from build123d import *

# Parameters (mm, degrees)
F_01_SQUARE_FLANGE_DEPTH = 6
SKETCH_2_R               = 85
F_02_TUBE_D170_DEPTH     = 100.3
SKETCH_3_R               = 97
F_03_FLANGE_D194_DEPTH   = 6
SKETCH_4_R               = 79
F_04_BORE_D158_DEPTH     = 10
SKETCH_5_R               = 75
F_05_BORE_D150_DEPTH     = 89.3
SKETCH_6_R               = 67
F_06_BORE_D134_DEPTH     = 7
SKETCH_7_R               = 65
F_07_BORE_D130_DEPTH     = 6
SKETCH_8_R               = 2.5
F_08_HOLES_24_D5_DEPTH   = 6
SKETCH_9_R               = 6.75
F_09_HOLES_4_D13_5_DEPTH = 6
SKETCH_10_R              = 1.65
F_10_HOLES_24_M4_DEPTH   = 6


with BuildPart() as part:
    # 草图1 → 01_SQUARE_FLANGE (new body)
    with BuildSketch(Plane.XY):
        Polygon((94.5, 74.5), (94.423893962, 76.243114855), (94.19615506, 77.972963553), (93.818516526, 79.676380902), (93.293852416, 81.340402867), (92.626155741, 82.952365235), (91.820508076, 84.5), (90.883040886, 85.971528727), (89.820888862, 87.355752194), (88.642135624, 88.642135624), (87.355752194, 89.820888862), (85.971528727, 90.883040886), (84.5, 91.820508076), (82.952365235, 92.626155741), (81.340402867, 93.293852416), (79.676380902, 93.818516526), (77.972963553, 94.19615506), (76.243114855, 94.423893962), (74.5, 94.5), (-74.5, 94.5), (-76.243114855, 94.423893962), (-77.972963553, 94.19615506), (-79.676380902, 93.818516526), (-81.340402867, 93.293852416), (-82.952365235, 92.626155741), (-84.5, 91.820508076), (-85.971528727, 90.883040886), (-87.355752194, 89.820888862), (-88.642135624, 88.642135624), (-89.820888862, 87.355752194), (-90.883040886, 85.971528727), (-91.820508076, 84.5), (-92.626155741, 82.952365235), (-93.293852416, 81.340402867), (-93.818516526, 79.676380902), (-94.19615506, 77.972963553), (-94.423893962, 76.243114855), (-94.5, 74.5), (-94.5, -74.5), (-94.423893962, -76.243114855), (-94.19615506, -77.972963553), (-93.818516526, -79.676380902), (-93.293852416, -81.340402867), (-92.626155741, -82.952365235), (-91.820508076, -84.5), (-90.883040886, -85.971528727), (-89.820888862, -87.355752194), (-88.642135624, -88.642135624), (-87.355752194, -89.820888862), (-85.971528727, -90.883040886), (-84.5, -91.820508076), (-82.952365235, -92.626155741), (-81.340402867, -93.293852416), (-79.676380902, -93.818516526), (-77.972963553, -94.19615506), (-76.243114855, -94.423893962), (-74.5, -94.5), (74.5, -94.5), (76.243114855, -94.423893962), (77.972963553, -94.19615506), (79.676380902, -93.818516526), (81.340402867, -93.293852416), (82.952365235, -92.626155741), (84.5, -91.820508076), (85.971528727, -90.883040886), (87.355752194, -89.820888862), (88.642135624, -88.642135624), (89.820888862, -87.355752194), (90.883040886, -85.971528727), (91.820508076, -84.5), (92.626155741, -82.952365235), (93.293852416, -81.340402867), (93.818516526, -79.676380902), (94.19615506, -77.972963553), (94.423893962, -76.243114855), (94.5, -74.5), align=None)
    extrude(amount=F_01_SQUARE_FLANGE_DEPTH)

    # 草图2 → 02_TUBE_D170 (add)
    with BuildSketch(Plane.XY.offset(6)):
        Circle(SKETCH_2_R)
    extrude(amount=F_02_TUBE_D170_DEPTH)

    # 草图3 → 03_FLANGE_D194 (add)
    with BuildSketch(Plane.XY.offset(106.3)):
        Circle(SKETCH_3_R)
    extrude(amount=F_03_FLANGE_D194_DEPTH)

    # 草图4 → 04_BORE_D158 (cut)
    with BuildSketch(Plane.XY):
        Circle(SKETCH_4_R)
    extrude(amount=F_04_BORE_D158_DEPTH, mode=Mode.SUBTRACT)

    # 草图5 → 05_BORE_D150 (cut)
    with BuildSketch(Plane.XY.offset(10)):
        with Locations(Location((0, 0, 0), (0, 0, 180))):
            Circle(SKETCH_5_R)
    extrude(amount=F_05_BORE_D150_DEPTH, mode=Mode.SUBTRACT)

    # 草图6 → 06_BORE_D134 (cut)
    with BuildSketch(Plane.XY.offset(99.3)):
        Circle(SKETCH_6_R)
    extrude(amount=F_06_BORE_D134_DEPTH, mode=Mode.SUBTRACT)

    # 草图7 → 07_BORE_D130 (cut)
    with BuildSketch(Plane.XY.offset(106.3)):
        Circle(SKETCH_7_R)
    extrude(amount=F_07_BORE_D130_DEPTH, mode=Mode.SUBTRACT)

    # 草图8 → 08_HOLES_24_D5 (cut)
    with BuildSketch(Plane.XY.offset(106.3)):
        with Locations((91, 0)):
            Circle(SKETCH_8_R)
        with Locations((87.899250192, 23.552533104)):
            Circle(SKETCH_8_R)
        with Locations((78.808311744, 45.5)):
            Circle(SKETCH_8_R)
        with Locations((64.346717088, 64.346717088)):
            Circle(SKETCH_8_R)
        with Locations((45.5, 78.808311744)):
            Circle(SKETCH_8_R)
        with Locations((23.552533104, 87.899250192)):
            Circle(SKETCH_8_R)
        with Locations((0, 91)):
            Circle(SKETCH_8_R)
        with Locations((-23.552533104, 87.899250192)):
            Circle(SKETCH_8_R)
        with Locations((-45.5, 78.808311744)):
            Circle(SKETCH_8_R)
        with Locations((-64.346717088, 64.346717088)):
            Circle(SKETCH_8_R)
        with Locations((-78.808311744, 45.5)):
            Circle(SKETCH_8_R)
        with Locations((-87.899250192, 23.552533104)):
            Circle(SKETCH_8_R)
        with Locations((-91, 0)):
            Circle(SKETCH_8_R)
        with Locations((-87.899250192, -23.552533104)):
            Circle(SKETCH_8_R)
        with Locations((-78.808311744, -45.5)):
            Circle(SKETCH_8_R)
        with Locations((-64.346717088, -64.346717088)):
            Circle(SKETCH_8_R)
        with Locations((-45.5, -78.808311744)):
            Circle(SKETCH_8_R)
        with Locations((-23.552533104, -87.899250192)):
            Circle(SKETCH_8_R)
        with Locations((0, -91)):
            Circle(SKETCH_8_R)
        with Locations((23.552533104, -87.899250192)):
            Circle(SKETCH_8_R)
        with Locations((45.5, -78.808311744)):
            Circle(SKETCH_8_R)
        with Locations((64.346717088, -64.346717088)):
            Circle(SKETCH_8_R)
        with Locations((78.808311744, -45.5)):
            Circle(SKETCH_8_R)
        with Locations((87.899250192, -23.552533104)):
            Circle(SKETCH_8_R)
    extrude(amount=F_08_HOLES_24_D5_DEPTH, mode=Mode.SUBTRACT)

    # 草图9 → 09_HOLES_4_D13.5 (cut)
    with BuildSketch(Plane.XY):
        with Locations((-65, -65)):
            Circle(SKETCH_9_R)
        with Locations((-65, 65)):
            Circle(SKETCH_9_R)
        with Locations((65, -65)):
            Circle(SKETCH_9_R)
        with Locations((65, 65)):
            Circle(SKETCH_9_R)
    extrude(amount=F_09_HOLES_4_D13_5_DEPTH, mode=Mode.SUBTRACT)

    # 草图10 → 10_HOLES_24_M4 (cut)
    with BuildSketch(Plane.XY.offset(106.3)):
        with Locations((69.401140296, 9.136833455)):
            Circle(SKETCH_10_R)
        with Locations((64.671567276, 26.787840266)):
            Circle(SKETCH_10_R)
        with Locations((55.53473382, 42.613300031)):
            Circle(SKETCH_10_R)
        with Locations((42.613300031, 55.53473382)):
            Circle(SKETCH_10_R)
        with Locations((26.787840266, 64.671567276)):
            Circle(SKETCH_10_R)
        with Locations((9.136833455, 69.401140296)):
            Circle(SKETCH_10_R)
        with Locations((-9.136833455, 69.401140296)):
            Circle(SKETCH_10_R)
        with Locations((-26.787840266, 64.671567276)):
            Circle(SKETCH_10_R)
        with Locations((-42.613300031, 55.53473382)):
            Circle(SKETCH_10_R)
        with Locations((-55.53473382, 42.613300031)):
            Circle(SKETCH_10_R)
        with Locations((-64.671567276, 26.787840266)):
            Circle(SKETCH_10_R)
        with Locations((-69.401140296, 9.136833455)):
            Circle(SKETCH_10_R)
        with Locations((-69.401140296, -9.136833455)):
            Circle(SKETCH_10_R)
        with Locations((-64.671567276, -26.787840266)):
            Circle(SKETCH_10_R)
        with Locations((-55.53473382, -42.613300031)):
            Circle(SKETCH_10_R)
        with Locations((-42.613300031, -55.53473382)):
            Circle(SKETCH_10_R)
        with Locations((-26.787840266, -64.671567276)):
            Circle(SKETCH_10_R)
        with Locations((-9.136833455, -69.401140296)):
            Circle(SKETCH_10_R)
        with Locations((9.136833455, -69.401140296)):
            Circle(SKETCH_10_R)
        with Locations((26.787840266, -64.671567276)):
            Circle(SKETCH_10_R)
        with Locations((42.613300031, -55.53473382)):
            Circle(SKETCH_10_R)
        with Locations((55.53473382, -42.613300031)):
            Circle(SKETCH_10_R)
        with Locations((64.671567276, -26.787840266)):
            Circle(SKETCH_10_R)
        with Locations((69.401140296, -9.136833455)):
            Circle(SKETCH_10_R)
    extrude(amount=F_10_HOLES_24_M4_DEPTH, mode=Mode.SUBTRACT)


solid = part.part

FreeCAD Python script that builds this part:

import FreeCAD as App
import Part
import Sketcher
from FreeCAD import Vector
Q = App.Units.Quantity


def add_polygon(sketch, points):
    """Adds a closed chain of lines whose ends are joined by coincident constraints."""
    first, n = sketch.GeometryCount, len(points)
    for a, b in zip(points, points[1:] + points[:1]):
        sketch.addGeometry(Part.LineSegment(App.Vector(*a, 0), App.Vector(*b, 0)), False)
    for i in range(n):
        sketch.addConstraint(Sketcher.Constraint("Coincident", first + i, 2, first + (i + 1) % n, 1))

doc = App.newDocument("Part")
body = doc.addObject("PartDesign::Body", "Body")

sketch1 = body.newObject("Sketcher::SketchObject", "Sketch")
sketch1.AttachmentSupport = (doc.getObject("XY_Plane"), [""])
sketch1.MapMode = "FlatFace"
add_polygon(sketch1, [(94.5, 74.5), (94.423894, 76.243115), (94.196155, 77.972964), (93.818517, 79.676381), (93.293852, 81.340403), (92.626156, 82.952365), (91.820508, 84.5), (90.883041, 85.971529), (89.820889, 87.355752), (88.642136, 88.642136), (87.355752, 89.820889), (85.971529, 90.883041), (84.5, 91.820508), (82.952365, 92.626156), (81.340403, 93.293852), (79.676381, 93.818517), (77.972964, 94.196155), (76.243115, 94.423894), (74.5, 94.5), (-74.5, 94.5), (-76.243115, 94.423894), (-77.972964, 94.196155), (-79.676381, 93.818517), (-81.340403, 93.293852), (-82.952365, 92.626156), (-84.5, 91.820508), (-85.971529, 90.883041), (-87.355752, 89.820889), (-88.642136, 88.642136), (-89.820889, 87.355752), (-90.883041, 85.971529), (-91.820508, 84.5), (-92.626156, 82.952365), (-93.293852, 81.340403), (-93.818517, 79.676381), (-94.196155, 77.972964), (-94.423894, 76.243115), (-94.5, 74.5), (-94.5, -74.5), (-94.423894, -76.243115), (-94.196155, -77.972964), (-93.818517, -79.676381), (-93.293852, -81.340403), (-92.626156, -82.952365), (-91.820508, -84.5), (-90.883041, -85.971529), (-89.820889, -87.355752), (-88.642136, -88.642136), (-87.355752, -89.820889), (-85.971529, -90.883041), (-84.5, -91.820508), (-82.952365, -92.626156), (-81.340403, -93.293852), (-79.676381, -93.818517), (-77.972964, -94.196155), (-76.243115, -94.423894), (-74.5, -94.5), (74.5, -94.5), (76.243115, -94.423894), (77.972964, -94.196155), (79.676381, -93.818517), (81.340403, -93.293852), (82.952365, -92.626156), (84.5, -91.820508), (85.971529, -90.883041), (87.355752, -89.820889), (88.642136, -88.642136), (89.820889, -87.355752), (90.883041, -85.971529), (91.820508, -84.5), (92.626156, -82.952365), (93.293852, -81.340403), (93.818517, -79.676381), (94.196155, -77.972964), (94.423894, -76.243115), (94.5, -74.5)])
sketch1.addConstraint([
    Sketcher.Constraint("Horizontal", 18),
    Sketcher.Constraint("Vertical", 37),
    Sketcher.Constraint("Horizontal", 56),
    Sketcher.Constraint("Vertical", 75),
    Sketcher.Constraint("Symmetric", 0, 2, 38, 2, -1, 1),
    Sketcher.Constraint("Symmetric", 1, 2, 39, 2, -1, 1),
    Sketcher.Constraint("Symmetric", 2, 2, 40, 2, -1, 1),
    Sketcher.Constraint("Symmetric", 3, 2, 41, 2, -1, 1),
    Sketcher.Constraint("Symmetric", 4, 2, 42, 2, -1, 1),
    Sketcher.Constraint("Symmetric", 5, 2, 43, 2, -1, 1),
    Sketcher.Constraint("Symmetric", 6, 2, 44, 2, -1, 1),
    Sketcher.Constraint("Symmetric", 7, 2, 45, 2, -1, 1),
    Sketcher.Constraint("Symmetric", 8, 2, 46, 2, -1, 1),
    Sketcher.Constraint("Symmetric", 9, 2, 47, 2, -1, 1),
    Sketcher.Constraint("Symmetric", 10, 2, 48, 2, -1, 1),
    Sketcher.Constraint("Symmetric", 11, 2, 49, 2, -1, 1),
    Sketcher.Constraint("Symmetric", 12, 2, 50, 2, -1, 1),
    Sketcher.Constraint("Symmetric", 13, 2, 51, 2, -1, 1),
    Sketcher.Constraint("Symmetric", 14, 2, 52, 2, -1, 1),
    Sketcher.Constraint("Symmetric", 15, 2, 53, 2, -1, 1),
    Sketcher.Constraint("Symmetric", 16, 2, 54, 2, -1, 1),
    Sketcher.Constraint("Symmetric", 17, 2, 55, 2, -1, 1),
    Sketcher.Constraint("Symmetric", 19, 2, 57, 2, -1, 1),
    Sketcher.Constraint("Symmetric", 20, 2, 58, 2, -1, 1),
    Sketcher.Constraint("Symmetric", 21, 2, 59, 2, -1, 1),
    Sketcher.Constraint("Symmetric", 22, 2, 60, 2, -1, 1),
    Sketcher.Constraint("Symmetric", 23, 2, 61, 2, -1, 1),
    Sketcher.Constraint("Symmetric", 24, 2, 62, 2, -1, 1),
    Sketcher.Constraint("Symmetric", 25, 2, 63, 2, -1, 1),
    Sketcher.Constraint("Symmetric", 26, 2, 64, 2, -1, 1),
    Sketcher.Constraint("Symmetric", 27, 2, 65, 2, -1, 1),
    Sketcher.Constraint("Symmetric", 28, 2, 66, 2, -1, 1),
    Sketcher.Constraint("Symmetric", 29, 2, 67, 2, -1, 1),
    Sketcher.Constraint("Symmetric", 30, 2, 68, 2, -1, 1),
    Sketcher.Constraint("Symmetric", 31, 2, 69, 2, -1, 1),
    Sketcher.Constraint("Symmetric", 32, 2, 70, 2, -1, 1),
    Sketcher.Constraint("Symmetric", 33, 2, 71, 2, -1, 1),
    Sketcher.Constraint("Symmetric", 34, 2, 72, 2, -1, 1),
    Sketcher.Constraint("Symmetric", 35, 2, 73, 2, -1, 1),
    Sketcher.Constraint("Symmetric", 36, 2, 74, 2, -1, 1),
    Sketcher.Constraint("Symmetric", 16, 2, 19, 2, -2),
    Sketcher.Constraint("Symmetric", 15, 2, 20, 2, -2),
    Sketcher.Constraint("Symmetric", 14, 2, 21, 2, -2),
    Sketcher.Constraint("Symmetric", 13, 2, 22, 2, -2),
    Sketcher.Constraint("Symmetric", 12, 2, 23, 2, -2),
    Sketcher.Constraint("Symmetric", 11, 2, 24, 2, -2),
    Sketcher.Constraint("Symmetric", 10, 2, 25, 2, -2),
    Sketcher.Constraint("Symmetric", 9, 2, 26, 2, -2),
    Sketcher.Constraint("Symmetric", 8, 2, 27, 2, -2),
    Sketcher.Constraint("Symmetric", 7, 2, 28, 2, -2),
    Sketcher.Constraint("Symmetric", 6, 2, 29, 2, -2),
    Sketcher.Constraint("Symmetric", 5, 2, 30, 2, -2),
    Sketcher.Constraint("Symmetric", 4, 2, 31, 2, -2),
    Sketcher.Constraint("Symmetric", 3, 2, 32, 2, -2),
    Sketcher.Constraint("Symmetric", 2, 2, 33, 2, -2),
    Sketcher.Constraint("Symmetric", 1, 2, 34, 2, -2),
    Sketcher.Constraint("Symmetric", 0, 2, 35, 2, -2),
    Sketcher.Constraint("Perpendicular", 0, 19),
    Sketcher.Constraint("Perpendicular", 1, 20),
    Sketcher.Constraint("Perpendicular", 2, 21),
    Sketcher.Constraint("Perpendicular", 3, 22),
    Sketcher.Constraint("Perpendicular", 4, 23),
    Sketcher.Constraint("Perpendicular", 5, 24),
    Sketcher.Constraint("Perpendicular", 6, 25),
    Sketcher.Constraint("Perpendicular", 7, 26),
    Sketcher.Constraint("Perpendicular", 8, 27),
    Sketcher.Constraint("Perpendicular", 17, 36),
    Sketcher.Constraint("Perpendicular", 19, 38),
    Sketcher.Constraint("Perpendicular", 38, 57),
    Sketcher.Constraint("Horizontal", 37, 2, 74, 2),
    Sketcher.Constraint("Equal", 56, 37),
    Sketcher.Constraint("Equal", 0, 1),
    Sketcher.Constraint("Equal", 1, 2),
    Sketcher.Constraint("Equal", 2, 3),
    Sketcher.Constraint("Equal", 3, 4),
    Sketcher.Constraint("Equal", 4, 5),
    Sketcher.Constraint("Equal", 5, 6),
    Sketcher.Constraint("Equal", 6, 7),
    Sketcher.Constraint("Equal", 7, 8),
    Sketcher.Constraint("Equal", 8, 9),
    Sketcher.Constraint("Equal", 9, 10),
    Sketcher.Constraint("Equal", 10, 11),
    Sketcher.Constraint("Equal", 11, 12),
    Sketcher.Constraint("Equal", 12, 13),
    Sketcher.Constraint("Equal", 13, 14),
    Sketcher.Constraint("Equal", 14, 15),
    Sketcher.Constraint("Equal", 15, 16),
    Sketcher.Constraint("Equal", 16, 17),
    Sketcher.Constraint("DistanceX", 18, 2, 18, 1, 149.0),
    Sketcher.Constraint("Angle", 0, Q("92.5 deg")),
    Sketcher.Constraint("Angle", 1, Q("97.5 deg")),
    Sketcher.Constraint("Angle", 2, Q("102.5 deg")),
    Sketcher.Constraint("Angle", 3, Q("107.5 deg")),
    Sketcher.Constraint("Angle", 4, Q("112.5 deg")),
    Sketcher.Constraint("Angle", 5, Q("117.5 deg")),
    Sketcher.Constraint("Angle", 6, Q("122.5 deg")),
    Sketcher.Constraint("Angle", 7, Q("127.5 deg")),
    Sketcher.Constraint("Angle", 8, Q("132.5 deg")),
    Sketcher.Constraint("DistanceY", -1, 1, 5, 2, 84.5),
])
pad1 = body.newObject("PartDesign::Pad", "Pad")
pad1.Profile = sketch1
pad1.Length = 6

sketch2 = body.newObject("Sketcher::SketchObject", "Sketch001")
sketch2.AttachmentSupport = (doc.getObject("XY_Plane"), [""])
sketch2.MapMode = "FlatFace"
sketch2.AttachmentOffset = App.Placement(Vector(0, 0, 6), App.Rotation())
sketch2.addGeometry(Part.Circle(Vector(0, 0, 0), Vector(0, 0, 1), 85), False)
sketch2.addConstraint([
    Sketcher.Constraint("Coincident", 0, 3, -1, 1),
    Sketcher.Constraint("Diameter", 0, 170.0),
])
pad2 = body.newObject("PartDesign::Pad", "Pad001")
pad2.Profile = sketch2
pad2.Length = 100.3

sketch3 = body.newObject("Sketcher::SketchObject", "Sketch002")
sketch3.AttachmentSupport = (doc.getObject("XY_Plane"), [""])
sketch3.MapMode = "FlatFace"
sketch3.AttachmentOffset = App.Placement(Vector(0, 0, 106.3), App.Rotation())
sketch3.addGeometry(Part.Circle(Vector(0, 0, 0), Vector(0, 0, 1), 97), False)
sketch3.addConstraint([
    Sketcher.Constraint("Coincident", 0, 3, -1, 1),
    Sketcher.Constraint("Diameter", 0, 194.0),
])
pad3 = body.newObject("PartDesign::Pad", "Pad002")
pad3.Profile = sketch3
pad3.Length = 6

sketch4 = body.newObject("Sketcher::SketchObject", "Sketch003")
sketch4.AttachmentSupport = (doc.getObject("XY_Plane"), [""])
sketch4.MapMode = "FlatFace"
sketch4.addGeometry(Part.Circle(Vector(0, 0, 0), Vector(0, 0, 1), 79), False)
sketch4.addConstraint([
    Sketcher.Constraint("Coincident", 0, 3, -1, 1),
    Sketcher.Constraint("Diameter", 0, 158.0),
])
pocket1 = body.newObject("PartDesign::Pocket", "Pocket")
pocket1.Profile = sketch4
pocket1.Length = 10
pocket1.Reversed = True

sketch5 = body.newObject("Sketcher::SketchObject", "Sketch004")
sketch5.AttachmentSupport = (doc.getObject("XY_Plane"), [""])
sketch5.MapMode = "FlatFace"
sketch5.AttachmentOffset = App.Placement(Vector(0, 0, 10), App.Rotation())
sketch5.addGeometry(Part.Circle(Vector(0, 0, 0), Vector(0, 0, 1), 75), False)
sketch5.addConstraint([
    Sketcher.Constraint("Coincident", 0, 3, -1, 1),
    Sketcher.Constraint("Diameter", 0, 150.0),
])
pocket2 = body.newObject("PartDesign::Pocket", "Pocket001")
pocket2.Profile = sketch5
pocket2.Length = 89.3
pocket2.Reversed = True

sketch6 = body.newObject("Sketcher::SketchObject", "Sketch005")
sketch6.AttachmentSupport = (doc.getObject("XY_Plane"), [""])
sketch6.MapMode = "FlatFace"
sketch6.AttachmentOffset = App.Placement(Vector(0, 0, 99.3), App.Rotation())
sketch6.addGeometry(Part.Circle(Vector(0, 0, 0), Vector(0, 0, 1), 67), False)
sketch6.addConstraint([
    Sketcher.Constraint("Coincident", 0, 3, -1, 1),
    Sketcher.Constraint("Diameter", 0, 134.0),
])
pocket3 = body.newObject("PartDesign::Pocket", "Pocket002")
pocket3.Profile = sketch6
pocket3.Length = 7
pocket3.Reversed = True

sketch7 = body.newObject("Sketcher::SketchObject", "Sketch006")
sketch7.AttachmentSupport = (doc.getObject("XY_Plane"), [""])
sketch7.MapMode = "FlatFace"
sketch7.AttachmentOffset = App.Placement(Vector(0, 0, 106.3), App.Rotation())
sketch7.addGeometry(Part.Circle(Vector(0, 0, 0), Vector(0, 0, 1), 65), False)
sketch7.addConstraint([
    Sketcher.Constraint("Coincident", 0, 3, -1, 1),
    Sketcher.Constraint("Diameter", 0, 130.0),
])
pocket4 = body.newObject("PartDesign::Pocket", "Pocket003")
pocket4.Profile = sketch7
pocket4.Length = 6
pocket4.Reversed = True

sketch8 = body.newObject("Sketcher::SketchObject", "Sketch007")
sketch8.AttachmentSupport = (doc.getObject("XY_Plane"), [""])
sketch8.MapMode = "FlatFace"
sketch8.AttachmentOffset = App.Placement(Vector(0, 0, 106.3), App.Rotation())
sketch8.addGeometry([
    Part.Circle(Vector(91, 0, 0), Vector(0, 0, 1), 2.5),
    Part.Circle(Vector(87.89925, 23.552533, 0), Vector(0, 0, 1), 2.5),
    Part.Circle(Vector(78.808312, 45.5, 0), Vector(0, 0, 1), 2.5),
    Part.Circle(Vector(64.346717, 64.346717, 0), Vector(0, 0, 1), 2.5),
    Part.Circle(Vector(45.5, 78.808312, 0), Vector(0, 0, 1), 2.5),
    Part.Circle(Vector(23.552533, 87.89925, 0), Vector(0, 0, 1), 2.5),
    Part.Circle(Vector(0, 91, 0), Vector(0, 0, 1), 2.5),
    Part.Circle(Vector(-23.552533, 87.89925, 0), Vector(0, 0, 1), 2.5),
    Part.Circle(Vector(-45.5, 78.808312, 0), Vector(0, 0, 1), 2.5),
    Part.Circle(Vector(-64.346717, 64.346717, 0), Vector(0, 0, 1), 2.5),
    Part.Circle(Vector(-78.808312, 45.5, 0), Vector(0, 0, 1), 2.5),
    Part.Circle(Vector(-87.89925, 23.552533, 0), Vector(0, 0, 1), 2.5),
    Part.Circle(Vector(-91, 0, 0), Vector(0, 0, 1), 2.5),
    Part.Circle(Vector(-87.89925, -23.552533, 0), Vector(0, 0, 1), 2.5),
    Part.Circle(Vector(-78.808312, -45.5, 0), Vector(0, 0, 1), 2.5),
    Part.Circle(Vector(-64.346717, -64.346717, 0), Vector(0, 0, 1), 2.5),
    Part.Circle(Vector(-45.5, -78.808312, 0), Vector(0, 0, 1), 2.5),
    Part.Circle(Vector(-23.552533, -87.89925, 0), Vector(0, 0, 1), 2.5),
    Part.Circle(Vector(0, -91, 0), Vector(0, 0, 1), 2.5),
    Part.Circle(Vector(23.552533, -87.89925, 0), Vector(0, 0, 1), 2.5),
    Part.Circle(Vector(45.5, -78.808312, 0), Vector(0, 0, 1), 2.5),
    Part.Circle(Vector(64.346717, -64.346717, 0), Vector(0, 0, 1), 2.5),
    Part.Circle(Vector(78.808312, -45.5, 0), Vector(0, 0, 1), 2.5),
    Part.Circle(Vector(87.89925, -23.552533, 0), Vector(0, 0, 1), 2.5),
], False)
sketch8.addConstraint([
    Sketcher.Constraint("Equal", 0, 1),
    Sketcher.Constraint("Equal", 1, 2),
    Sketcher.Constraint("Equal", 2, 3),
    Sketcher.Constraint("Equal", 3, 4),
    Sketcher.Constraint("Equal", 4, 5),
    Sketcher.Constraint("Equal", 5, 6),
    Sketcher.Constraint("Equal", 6, 7),
    Sketcher.Constraint("Equal", 7, 8),
    Sketcher.Constraint("Equal", 8, 9),
    Sketcher.Constraint("Equal", 9, 10),
    Sketcher.Constraint("Equal", 10, 11),
    Sketcher.Constraint("Equal", 11, 12),
    Sketcher.Constraint("Equal", 12, 13),
    Sketcher.Constraint("Equal", 13, 14),
    Sketcher.Constraint("Equal", 14, 15),
    Sketcher.Constraint("Equal", 15, 16),
    Sketcher.Constraint("Equal", 16, 17),
    Sketcher.Constraint("Equal", 17, 18),
    Sketcher.Constraint("Equal", 18, 19),
    Sketcher.Constraint("Equal", 19, 20),
    Sketcher.Constraint("Equal", 20, 21),
    Sketcher.Constraint("Equal", 21, 22),
    Sketcher.Constraint("Equal", 22, 23),
    Sketcher.Constraint("Symmetric", 0, 3, 12, 3, -1, 1),
    Sketcher.Constraint("Symmetric", 1, 3, 13, 3, -1, 1),
    Sketcher.Constraint("Symmetric", 2, 3, 14, 3, -1, 1),
    Sketcher.Constraint("Symmetric", 3, 3, 15, 3, -1, 1),
    Sketcher.Constraint("Symmetric", 4, 3, 16, 3, -1, 1),
    Sketcher.Constraint("Symmetric", 5, 3, 17, 3, -1, 1),
    Sketcher.Constraint("Symmetric", 6, 3, 18, 3, -1, 1),
    Sketcher.Constraint("Symmetric", 7, 3, 19, 3, -1, 1),
    Sketcher.Constraint("Symmetric", 8, 3, 20, 3, -1, 1),
    Sketcher.Constraint("Symmetric", 9, 3, 21, 3, -1, 1),
    Sketcher.Constraint("Symmetric", 10, 3, 22, 3, -1, 1),
    Sketcher.Constraint("Symmetric", 11, 3, 23, 3, -1, 1),
    Sketcher.Constraint("Symmetric", 5, 3, 7, 3, -2),
    Sketcher.Constraint("Symmetric", 4, 3, 8, 3, -2),
    Sketcher.Constraint("Symmetric", 3, 3, 9, 3, -2),
    Sketcher.Constraint("Symmetric", 2, 3, 10, 3, -2),
    Sketcher.Constraint("Symmetric", 1, 3, 11, 3, -2),
    Sketcher.Constraint("PointOnObject", 0, 3, -1),
    Sketcher.Constraint("PointOnObject", 6, 3, -2),
    Sketcher.Constraint("Diameter", 0, 5.0),
    Sketcher.Constraint("DistanceX", -1, 1, 0, 3, 91.0),
    Sketcher.Constraint("DistanceY", -1, 1, 6, 3, 91.0),
    Sketcher.Constraint("DistanceX", 8, 3, 4, 3, 91.0),
    Sketcher.Constraint("DistanceY", 14, 3, 10, 3, 91.0),
    Sketcher.Constraint("DistanceX", -1, 1, 1, 3, 87.89925),
    Sketcher.Constraint("DistanceX", -1, 1, 2, 3, 78.808312),
    Sketcher.Constraint("DistanceY", -1, 1, 4, 3, 78.808312),
    Sketcher.Constraint("DistanceY", -1, 1, 5, 3, 87.89925),
    Sketcher.Constraint("DistanceY", 1, 3, 4, 3, 55.255779),
    Sketcher.Constraint("DistanceX", 5, 3, 2, 3, 55.255779),
    Sketcher.Constraint("DistanceX", 7, 3, 3, 3, 87.89925),
    Sketcher.Constraint("DistanceY", 13, 3, 9, 3, 87.89925),
])
pocket5 = body.newObject("PartDesign::Pocket", "Pocket004")
pocket5.Profile = sketch8
pocket5.Length = 6
pocket5.Reversed = True

sketch9 = body.newObject("Sketcher::SketchObject", "Sketch008")
sketch9.AttachmentSupport = (doc.getObject("XY_Plane"), [""])
sketch9.MapMode = "FlatFace"
sketch9.addGeometry([
    Part.Circle(Vector(-65, -65, 0), Vector(0, 0, 1), 6.75),
    Part.Circle(Vector(-65, 65, 0), Vector(0, 0, 1), 6.75),
    Part.Circle(Vector(65, -65, 0), Vector(0, 0, 1), 6.75),
    Part.Circle(Vector(65, 65, 0), Vector(0, 0, 1), 6.75),
], False)
sketch9.addConstraint([
    Sketcher.Constraint("Equal", 0, 1),
    Sketcher.Constraint("Equal", 1, 2),
    Sketcher.Constraint("Equal", 2, 3),
    Sketcher.Constraint("Symmetric", 1, 3, 2, 3, -1, 1),
    Sketcher.Constraint("Symmetric", 0, 3, 3, 3, -1, 1),
    Sketcher.Constraint("Symmetric", 0, 3, 2, 3, -2),
    Sketcher.Constraint("Diameter", 0, 13.5),
    Sketcher.Constraint("DistanceX", 0, 3, -1, 1, 65.0),
    Sketcher.Constraint("DistanceY", 0, 3, -1, 1, 65.0),
])
pocket6 = body.newObject("PartDesign::Pocket", "Pocket005")
pocket6.Profile = sketch9
pocket6.Length = 6
pocket6.Reversed = True

sketch10 = body.newObject("Sketcher::SketchObject", "Sketch009")
sketch10.AttachmentSupport = (doc.getObject("XY_Plane"), [""])
sketch10.MapMode = "FlatFace"
sketch10.AttachmentOffset = App.Placement(Vector(0, 0, 106.3), App.Rotation())
sketch10.addGeometry([
    Part.Circle(Vector(69.40114, 9.136833, 0), Vector(0, 0, 1), 1.65),
    Part.Circle(Vector(64.671567, 26.78784, 0), Vector(0, 0, 1), 1.65),
    Part.Circle(Vector(55.534734, 42.6133, 0), Vector(0, 0, 1), 1.65),
    Part.Circle(Vector(42.6133, 55.534734, 0), Vector(0, 0, 1), 1.65),
    Part.Circle(Vector(26.78784, 64.671567, 0), Vector(0, 0, 1), 1.65),
    Part.Circle(Vector(9.136833, 69.40114, 0), Vector(0, 0, 1), 1.65),
    Part.Circle(Vector(-9.136833, 69.40114, 0), Vector(0, 0, 1), 1.65),
    Part.Circle(Vector(-26.78784, 64.671567, 0), Vector(0, 0, 1), 1.65),
    Part.Circle(Vector(-42.6133, 55.534734, 0), Vector(0, 0, 1), 1.65),
    Part.Circle(Vector(-55.534734, 42.6133, 0), Vector(0, 0, 1), 1.65),
    Part.Circle(Vector(-64.671567, 26.78784, 0), Vector(0, 0, 1), 1.65),
    Part.Circle(Vector(-69.40114, 9.136833, 0), Vector(0, 0, 1), 1.65),
    Part.Circle(Vector(-69.40114, -9.136833, 0), Vector(0, 0, 1), 1.65),
    Part.Circle(Vector(-64.671567, -26.78784, 0), Vector(0, 0, 1), 1.65),
    Part.Circle(Vector(-55.534734, -42.6133, 0), Vector(0, 0, 1), 1.65),
    Part.Circle(Vector(-42.6133, -55.534734, 0), Vector(0, 0, 1), 1.65),
    Part.Circle(Vector(-26.78784, -64.671567, 0), Vector(0, 0, 1), 1.65),
    Part.Circle(Vector(-9.136833, -69.40114, 0), Vector(0, 0, 1), 1.65),
    Part.Circle(Vector(9.136833, -69.40114, 0), Vector(0, 0, 1), 1.65),
    Part.Circle(Vector(26.78784, -64.671567, 0), Vector(0, 0, 1), 1.65),
    Part.Circle(Vector(42.6133, -55.534734, 0), Vector(0, 0, 1), 1.65),
    Part.Circle(Vector(55.534734, -42.6133, 0), Vector(0, 0, 1), 1.65),
    Part.Circle(Vector(64.671567, -26.78784, 0), Vector(0, 0, 1), 1.65),
    Part.Circle(Vector(69.40114, -9.136833, 0), Vector(0, 0, 1), 1.65),
], False)
sketch10.addConstraint([
    Sketcher.Constraint("Equal", 0, 1),
    Sketcher.Constraint("Equal", 1, 2),
    Sketcher.Constraint("Equal", 2, 3),
    Sketcher.Constraint("Equal", 3, 4),
    Sketcher.Constraint("Equal", 4, 5),
    Sketcher.Constraint("Equal", 5, 6),
    Sketcher.Constraint("Equal", 6, 7),
    Sketcher.Constraint("Equal", 7, 8),
    Sketcher.Constraint("Equal", 8, 9),
    Sketcher.Constraint("Equal", 9, 10),
    Sketcher.Constraint("Equal", 10, 11),
    Sketcher.Constraint("Equal", 11, 12),
    Sketcher.Constraint("Equal", 12, 13),
    Sketcher.Constraint("Equal", 13, 14),
    Sketcher.Constraint("Equal", 14, 15),
    Sketcher.Constraint("Equal", 15, 16),
    Sketcher.Constraint("Equal", 16, 17),
    Sketcher.Constraint("Equal", 17, 18),
    Sketcher.Constraint("Equal", 18, 19),
    Sketcher.Constraint("Equal", 19, 20),
    Sketcher.Constraint("Equal", 20, 21),
    Sketcher.Constraint("Equal", 21, 22),
    Sketcher.Constraint("Equal", 22, 23),
    Sketcher.Constraint("Symmetric", 0, 3, 12, 3, -1, 1),
    Sketcher.Constraint("Symmetric", 1, 3, 13, 3, -1, 1),
    Sketcher.Constraint("Symmetric", 2, 3, 14, 3, -1, 1),
    Sketcher.Constraint("Symmetric", 3, 3, 15, 3, -1, 1),
    Sketcher.Constraint("Symmetric", 4, 3, 16, 3, -1, 1),
    Sketcher.Constraint("Symmetric", 5, 3, 17, 3, -1, 1),
    Sketcher.Constraint("Symmetric", 6, 3, 18, 3, -1, 1),
    Sketcher.Constraint("Symmetric", 7, 3, 19, 3, -1, 1),
    Sketcher.Constraint("Symmetric", 8, 3, 20, 3, -1, 1),
    Sketcher.Constraint("Symmetric", 9, 3, 21, 3, -1, 1),
    Sketcher.Constraint("Symmetric", 10, 3, 22, 3, -1, 1),
    Sketcher.Constraint("Symmetric", 11, 3, 23, 3, -1, 1),
    Sketcher.Constraint("Symmetric", 5, 3, 6, 3, -2),
    Sketcher.Constraint("Symmetric", 4, 3, 7, 3, -2),
    Sketcher.Constraint("Symmetric", 3, 3, 8, 3, -2),
    Sketcher.Constraint("Symmetric", 2, 3, 9, 3, -2),
    Sketcher.Constraint("Symmetric", 1, 3, 10, 3, -2),
    Sketcher.Constraint("Symmetric", 0, 3, 11, 3, -2),
    Sketcher.Constraint("Diameter", 0, 3.3),
    Sketcher.Constraint("DistanceY", -1, 1, 2, 3, 42.6133),
    Sketcher.Constraint("DistanceX", -1, 1, 3, 3, 42.6133),
    Sketcher.Constraint("DistanceY", 0, 3, 3, 3, 46.3979),
    Sketcher.Constraint("DistanceX", 4, 3, 0, 3, 42.6133),
    Sketcher.Constraint("DistanceX", 5, 3, 2, 3, 46.3979),
    Sketcher.Constraint("DistanceY", 1, 3, 5, 3, 42.6133),
    Sketcher.Constraint("DistanceX", 6, 3, 1, 3, 73.808401),
    Sketcher.Constraint("DistanceY", 12, 3, 7, 3, 73.808401),
    Sketcher.Constraint("DistanceX", -1, 1, 0, 3, 69.40114),
    Sketcher.Constraint("DistanceY", -1, 1, 1, 3, 26.78784),
    Sketcher.Constraint("DistanceY", -1, 1, 0, 3, 9.136833),
    Sketcher.Constraint("DistanceX", -1, 1, 1, 3, 64.671567),
])
pocket7 = body.newObject("PartDesign::Pocket", "Pocket006")
pocket7.Profile = sketch10
pocket7.Length = 6
pocket7.Reversed = True

doc.recompute()
